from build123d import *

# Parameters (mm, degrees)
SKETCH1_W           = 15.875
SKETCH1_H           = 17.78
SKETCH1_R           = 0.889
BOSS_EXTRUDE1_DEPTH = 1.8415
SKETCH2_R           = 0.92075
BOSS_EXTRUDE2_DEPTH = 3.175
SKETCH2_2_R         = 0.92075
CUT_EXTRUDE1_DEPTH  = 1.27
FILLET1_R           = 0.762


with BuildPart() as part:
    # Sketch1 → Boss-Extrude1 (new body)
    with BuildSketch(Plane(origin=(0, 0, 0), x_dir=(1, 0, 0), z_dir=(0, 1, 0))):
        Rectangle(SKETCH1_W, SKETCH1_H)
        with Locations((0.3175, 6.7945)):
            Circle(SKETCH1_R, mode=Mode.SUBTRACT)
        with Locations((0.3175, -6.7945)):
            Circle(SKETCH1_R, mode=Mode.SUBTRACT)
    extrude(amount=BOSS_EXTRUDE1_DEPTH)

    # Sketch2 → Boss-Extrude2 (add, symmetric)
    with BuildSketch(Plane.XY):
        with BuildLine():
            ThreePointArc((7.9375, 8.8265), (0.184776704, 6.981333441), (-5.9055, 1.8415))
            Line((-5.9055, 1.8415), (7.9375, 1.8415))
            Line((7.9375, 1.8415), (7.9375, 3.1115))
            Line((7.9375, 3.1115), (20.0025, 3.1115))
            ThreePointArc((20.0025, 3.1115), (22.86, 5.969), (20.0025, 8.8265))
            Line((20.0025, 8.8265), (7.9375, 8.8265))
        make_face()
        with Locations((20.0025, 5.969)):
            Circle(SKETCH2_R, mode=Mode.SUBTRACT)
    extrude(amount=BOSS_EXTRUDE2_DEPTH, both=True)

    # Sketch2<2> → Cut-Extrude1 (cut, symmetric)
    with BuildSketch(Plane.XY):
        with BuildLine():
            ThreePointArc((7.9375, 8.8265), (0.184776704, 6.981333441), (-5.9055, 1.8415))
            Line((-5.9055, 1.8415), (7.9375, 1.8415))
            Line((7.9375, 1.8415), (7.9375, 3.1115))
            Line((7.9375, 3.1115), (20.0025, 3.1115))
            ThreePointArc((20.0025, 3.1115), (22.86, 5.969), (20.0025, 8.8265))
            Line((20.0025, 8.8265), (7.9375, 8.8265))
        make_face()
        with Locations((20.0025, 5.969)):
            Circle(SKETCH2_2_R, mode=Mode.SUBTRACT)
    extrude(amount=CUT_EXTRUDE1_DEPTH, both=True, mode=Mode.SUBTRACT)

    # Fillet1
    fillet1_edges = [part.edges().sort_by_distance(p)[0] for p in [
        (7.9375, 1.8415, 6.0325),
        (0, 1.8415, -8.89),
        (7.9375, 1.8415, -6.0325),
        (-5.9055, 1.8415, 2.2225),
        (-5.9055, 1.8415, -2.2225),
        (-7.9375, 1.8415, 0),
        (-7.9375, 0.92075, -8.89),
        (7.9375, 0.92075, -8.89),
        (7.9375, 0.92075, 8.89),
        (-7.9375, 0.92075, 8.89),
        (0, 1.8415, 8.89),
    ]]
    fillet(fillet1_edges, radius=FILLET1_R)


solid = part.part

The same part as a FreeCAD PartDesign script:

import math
import FreeCAD as App
import Part
import Sketcher

V = App.Vector
Q = App.Units.Quantity


def edges_at(feature, points):
    """Names of the edges that pass closest to the given points."""
    edges = feature.Shape.Edges
    near = lambda p: min(range(len(edges)), key=lambda i: edges[i].distToShape(Part.Vertex(*p))[0])
    return sorted({f"Edge{near(p) + 1}" for p in points})

doc = App.newDocument("Part")
body = doc.addObject("PartDesign::Body", "Body")

sketch1 = body.newObject("Sketcher::SketchObject", "Sketch")
sketch1.AttachmentSupport = (doc.getObject("XZ_Plane"), [""])
sketch1.MapMode = "FlatFace"
sketch1.addGeometry(Part.LineSegment(V(-7.9, -8.9, 0), V(-7.9, 8.9, 0)), False)
sketch1.addGeometry(Part.LineSegment(V(-7.9, 8.9, 0), V(7.9, 8.9, 0)), False)
sketch1.addGeometry(Part.LineSegment(V(7.9, 8.9, 0), V(7.9, -8.9, 0)), False)
sketch1.addGeometry(Part.LineSegment(V(7.9, -8.9, 0), V(-7.9, -8.9, 0)), False)
sketch1.addGeometry(Part.Circle(V(0.3, 6.8, 0), V(0, 0, 1), 0.9), False)
sketch1.addGeometry(Part.Circle(V(0.3, -6.8, 0), V(0, 0, 1), 0.9), False)
sketch1.addConstraint(Sketcher.Constraint("Coincident", 0, 2, 1, 1))
sketch1.addConstraint(Sketcher.Constraint("Coincident", 1, 2, 2, 1))
sketch1.addConstraint(Sketcher.Constraint("Coincident", 2, 2, 3, 1))
sketch1.addConstraint(Sketcher.Constraint("Coincident", 3, 2, 0, 1))
sketch1.addConstraint(Sketcher.Constraint("Vertical", 0))
sketch1.addConstraint(Sketcher.Constraint("Horizontal", 1))
sketch1.addConstraint(Sketcher.Constraint("Vertical", 2))
sketch1.addConstraint(Sketcher.Constraint("Horizontal", 3))
sketch1.addConstraint(Sketcher.Constraint("Equal", 4, 5))
sketch1.addConstraint(Sketcher.Constraint("Symmetric", 0, 2, 2, 2, -1, 1))
sketch1.addConstraint(Sketcher.Constraint("Symmetric", 4, 3, 5, 3, -1))
sketch1.addConstraint(Sketcher.Constraint("Diameter", 4, Q("0.07 in")))
sketch1.addConstraint(Sketcher.Constraint("DistanceY", 0, 1, 0, 2, Q("0.7 in")))
sketch1.addConstraint(Sketcher.Constraint("DistanceX", 4, 3, 1, 2, Q("0.3 in")))
sketch1.addConstraint(Sketcher.Constraint("DistanceX", 1, 1, 1, 2, Q("0.625 in")))
sketch1.addConstraint(Sketcher.Constraint("DistanceY", 5, 3, 4, 3, Q("0.535 in")))
pad1 = body.newObject("PartDesign::Pad", "Pad")
pad1.Profile = sketch1
pad1.Length = Q("0.0725 in")
pad1.Reversed = True

sketch2 = body.newObject("Sketcher::SketchObject", "Sketch001")
sketch2.AttachmentSupport = (doc.getObject("XY_Plane"), [""])
sketch2.MapMode = "FlatFace"
sketch2.addGeometry(Part.ArcOfCircle(Part.Circle(V(7.9, -8.4, 0), V(0, 0, 1), 17.2), math.radians(90), math.radians(144)), False)
sketch2.addGeometry(Part.LineSegment(V(-5.9, 1.8, 0), V(7.9, 1.8, 0)), False)
sketch2.addGeometry(Part.LineSegment(V(7.9, 1.8, 0), V(7.9, 3.1, 0)), False)
sketch2.addGeometry(Part.LineSegment(V(7.9, 3.1, 0), V(20, 3.1, 0)), False)
sketch2.addGeometry(Part.ArcOfCircle(Part.Circle(V(20, 6, 0), V(0, 0, 1), 2.9), math.radians(-90), math.radians(90)), False)
sketch2.addGeometry(Part.LineSegment(V(20, 8.8, 0), V(7.9, 8.8, 0)), False)
sketch2.addGeometry(Part.Circle(V(20, 6, 0), V(0, 0, 1), 0.9), False)
sketch2.addConstraint(Sketcher.Constraint("Coincident", 0, 2, 1, 1))
sketch2.addConstraint(Sketcher.Constraint("Coincident", 1, 2, 2, 1))
sketch2.addConstraint(Sketcher.Constraint("Coincident", 2, 2, 3, 1))
sketch2.addConstraint(Sketcher.Constraint("Tangent", 3, 2, 4, 1))
sketch2.addConstraint(Sketcher.Constraint("Tangent", 4, 2, 5, 1))
sketch2.addConstraint(Sketcher.Constraint("Tangent", 5, 2, 0, 1))
sketch2.addConstraint(Sketcher.Constraint("Horizontal", 1))
sketch2.addConstraint(Sketcher.Constraint("Vertical", 2))
sketch2.addConstraint(Sketcher.Constraint("Horizontal", 3))
sketch2.addConstraint(Sketcher.Constraint("Horizontal", 5))
sketch2.addConstraint(Sketcher.Constraint("Coincident", 6, 3, 4, 3))
sketch2.addConstraint(Sketcher.Constraint("Vertical", 0, 3, 1, 2))
sketch2.addConstraint(Sketcher.Constraint("Diameter", 6, Q("0.0725 in")))
sketch2.addConstraint(Sketcher.Constraint("DistanceY", 2, 1, 2, 2, Q("0.05 in")))
sketch2.addConstraint(Sketcher.Constraint("Radius", 4, Q("0.1125 in")))
sketch2.addConstraint(Sketcher.Constraint("DistanceX", 1, 1, 1, 2, Q("0.545 in")))
sketch2.addConstraint(Sketcher.Constraint("DistanceX", 3, 1, 3, 2, Q("0.475 in")))
sketch2.addConstraint(Sketcher.Constraint("DistanceX", -1, 1, 0, 3, Q("0.3125 in")))
sketch2.addConstraint(Sketcher.Constraint("DistanceY", -1, 1, 4, 3, Q("0.235 in")))
pad2 = body.newObject("PartDesign::Pad", "Pad001")
pad2.Profile = sketch2
pad2.Length = Q("0.25 in")
pad2.Midplane = True

sketch3 = body.newObject("Sketcher::SketchObject", "Sketch002")
sketch3.AttachmentSupport = (doc.getObject("XY_Plane"), [""])
sketch3.MapMode = "FlatFace"
sketch3.addGeometry(Part.ArcOfCircle(Part.Circle(V(7.9, -8.4, 0), V(0, 0, 1), 17.2), math.radians(90), math.radians(144)), False)
sketch3.addGeometry(Part.LineSegment(V(-5.9, 1.8, 0), V(7.9, 1.8, 0)), False)
sketch3.addGeometry(Part.LineSegment(V(7.9, 1.8, 0), V(7.9, 3.1, 0)), False)
sketch3.addGeometry(Part.LineSegment(V(7.9, 3.1, 0), V(20, 3.1, 0)), False)
sketch3.addGeometry(Part.ArcOfCircle(Part.Circle(V(20, 6, 0), V(0, 0, 1), 2.9), math.radians(-90), math.radians(90)), False)
sketch3.addGeometry(Part.LineSegment(V(20, 8.8, 0), V(7.9, 8.8, 0)), False)
sketch3.addGeometry(Part.Circle(V(20, 6, 0), V(0, 0, 1), 0.9), False)
sketch3.addConstraint(Sketcher.Constraint("Coincident", 0, 2, 1, 1))
sketch3.addConstraint(Sketcher.Constraint("Coincident", 1, 2, 2, 1))
sketch3.addConstraint(Sketcher.Constraint("Coincident", 2, 2, 3, 1))
sketch3.addConstraint(Sketcher.Constraint("Tangent", 3, 2, 4, 1))
sketch3.addConstraint(Sketcher.Constraint("Tangent", 4, 2, 5, 1))
sketch3.addConstraint(Sketcher.Constraint("Tangent", 5, 2, 0, 1))
sketch3.addConstraint(Sketcher.Constraint("Horizontal", 1))
sketch3.addConstraint(Sketcher.Constraint("Vertical", 2))
sketch3.addConstraint(Sketcher.Constraint("Horizontal", 3))
sketch3.addConstraint(Sketcher.Constraint("Horizontal", 5))
sketch3.addConstraint(Sketcher.Constraint("Coincident", 6, 3, 4, 3))
sketch3.addConstraint(Sketcher.Constraint("Vertical", 0, 3, 1, 2))
sketch3.addConstraint(Sketcher.Constraint("Diameter", 6, Q("0.0725 in")))
sketch3.addConstraint(Sketcher.Constraint("DistanceY", 2, 1, 2, 2, Q("0.05 in")))
sketch3.addConstraint(Sketcher.Constraint("Radius", 4, Q("0.1125 in")))
sketch3.addConstraint(Sketcher.Constraint("DistanceX", 1, 1, 1, 2, Q("0.545 in")))
sketch3.addConstraint(Sketcher.Constraint("DistanceX", 3, 1, 3, 2, Q("0.475 in")))
sketch3.addConstraint(Sketcher.Constraint("DistanceX", -1, 1, 0, 3, Q("0.3125 in")))
sketch3.addConstraint(Sketcher.Constraint("DistanceY", -1, 1, 4, 3, Q("0.235 in")))
pocket1 = body.newObject("PartDesign::Pocket", "Pocket")
pocket1.Profile = sketch3
pocket1.Length = Q("0.1 in")
pocket1.Midplane = True
doc.recompute()

fillet = body.newObject("PartDesign::Fillet", "Fillet")
fillet.Base = (pocket1, edges_at(pocket1, [
    (7.938, 1.841, 6.032),
    (0, 1.841, -8.89),
    (7.938, 1.841, -6.032),
    (-5.905, 1.841, 2.223),
    (-5.905, 1.841, -2.223),
    (-7.938, 1.841, 0),
    (-7.938, 0.921, -8.89),
    (7.938, 0.921, -8.89),
    (7.938, 0.921, 8.89),
    (-7.938, 0.921, 8.89),
    (0, 1.841, 8.89),
]))
fillet.Radius = Q("0.03 in")

doc.recompute()
